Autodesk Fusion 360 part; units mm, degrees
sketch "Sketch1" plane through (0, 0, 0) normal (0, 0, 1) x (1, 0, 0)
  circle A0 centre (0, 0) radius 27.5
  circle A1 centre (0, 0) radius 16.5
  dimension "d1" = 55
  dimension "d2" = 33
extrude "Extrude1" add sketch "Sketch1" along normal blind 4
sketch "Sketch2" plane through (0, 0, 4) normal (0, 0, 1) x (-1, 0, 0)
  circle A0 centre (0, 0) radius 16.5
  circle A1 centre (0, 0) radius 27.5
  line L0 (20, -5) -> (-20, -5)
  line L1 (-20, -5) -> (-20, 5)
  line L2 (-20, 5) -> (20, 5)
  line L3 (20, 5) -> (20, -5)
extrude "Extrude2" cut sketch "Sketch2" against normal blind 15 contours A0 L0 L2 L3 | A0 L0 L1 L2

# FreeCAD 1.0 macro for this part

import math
import FreeCAD as App
import Part
import Sketcher

V = App.Vector
Q = App.Units.Quantity

doc = App.newDocument("Part")
body = doc.addObject("PartDesign::Body", "Body")

# Sketch on XY plane
sketch1 = body.newObject("Sketcher::SketchObject", "Sketch")
sketch1.AttachmentSupport = (doc.getObject("XY_Plane"), [""])
sketch1.MapMode = "FlatFace"
sketch1.addGeometry([
    Part.Circle(V(0, 0, 0), V(0, 0, 1), 28),
    Part.Circle(V(0, 0, 0), V(0, 0, 1), 16),
], False)
sketch1.addConstraint([
    Sketcher.Constraint("Coincident", 0, 3, -1, 1),
    Sketcher.Constraint("Coincident", 1, 3, -1, 1),
    Sketcher.Constraint("Diameter", 0, Q("55 mm")),
    Sketcher.Constraint("Diameter", 1, Q("33 mm")),
])
pad1 = body.newObject("PartDesign::Pad", "Pad")
pad1.Profile = sketch1
pad1.Length = 4

# Sketch on XY plane
sketch2 = body.newObject("Sketcher::SketchObject", "Sketch001")
sketch2.AttachmentSupport = (doc.getObject("XY_Plane"), [""])
sketch2.MapMode = "FlatFace"
sketch2.AttachmentOffset = App.Placement(V(0, 0, 4), App.Rotation())
sketch2.addGeometry([
    Part.ArcOfCircle(Part.Circle(V(0, 0, 0), V(0, 0, 1), 16.5), math.radians(162), math.radians(198)),  # 0
    Part.LineSegment(V(-15.7, 5, 0), V(-20, 5, 0)),  # 1
    Part.LineSegment(V(-20, 5, 0), V(-20, -5, 0)),  # 2
    Part.LineSegment(V(-20, -5, 0), V(-15.7, -5, 0)),  # 3
    Part.ArcOfCircle(Part.Circle(V(0, 0, 0), V(0, 0, 1), 16.5), math.radians(-18), math.radians(18)),  # 4
    Part.LineSegment(V(15.7, -5, 0), V(20, -5, 0)),  # 5
    Part.LineSegment(V(20, -5, 0), V(20, 5, 0)),  # 6
    Part.LineSegment(V(20, 5, 0), V(15.7, 5, 0)),  # 7
], False)
sketch2.addConstraint([
    Sketcher.Constraint("Coincident", 0, 1, 1, 1),
    Sketcher.Constraint("Coincident", 1, 2, 2, 1),
    Sketcher.Constraint("Coincident", 2, 2, 3, 1),
    Sketcher.Constraint("Coincident", 3, 2, 0, 2),
    Sketcher.Constraint("Coincident", 4, 1, 5, 1),
    Sketcher.Constraint("Coincident", 5, 2, 6, 1),
    Sketcher.Constraint("Coincident", 6, 2, 7, 1),
    Sketcher.Constraint("Coincident", 7, 2, 4, 2),
    Sketcher.Constraint("Horizontal", 1),
    Sketcher.Constraint("Vertical", 2),
    Sketcher.Constraint("Horizontal", 3),
    Sketcher.Constraint("Horizontal", 5),
    Sketcher.Constraint("Vertical", 6),
    Sketcher.Constraint("Horizontal", 7),
    Sketcher.Constraint("Coincident", 0, 3, -1, 1),
    Sketcher.Constraint("Coincident", 4, 3, -1, 1),
    Sketcher.Constraint("Equal", 0, 4),
    Sketcher.Constraint("Symmetric", 1, 2, 5, 2, -1, 1),
    Sketcher.Constraint("Horizontal", 3, 2, 4, 1),
    Sketcher.Constraint("Horizontal", 1, 2, 6, 2),
    Sketcher.Constraint("Radius", 0, Q("16.5 mm")),
    Sketcher.Constraint("DistanceY", 2, 2, 2, 1, Q("10 mm")),
    Sketcher.Constraint("DistanceX", 1, 2, -1, 1, Q("20 mm")),
])
pocket1 = body.newObject("PartDesign::Pocket", "Pocket")
pocket1.Profile = sketch2
pocket1.Length = 15

doc.recompute()
